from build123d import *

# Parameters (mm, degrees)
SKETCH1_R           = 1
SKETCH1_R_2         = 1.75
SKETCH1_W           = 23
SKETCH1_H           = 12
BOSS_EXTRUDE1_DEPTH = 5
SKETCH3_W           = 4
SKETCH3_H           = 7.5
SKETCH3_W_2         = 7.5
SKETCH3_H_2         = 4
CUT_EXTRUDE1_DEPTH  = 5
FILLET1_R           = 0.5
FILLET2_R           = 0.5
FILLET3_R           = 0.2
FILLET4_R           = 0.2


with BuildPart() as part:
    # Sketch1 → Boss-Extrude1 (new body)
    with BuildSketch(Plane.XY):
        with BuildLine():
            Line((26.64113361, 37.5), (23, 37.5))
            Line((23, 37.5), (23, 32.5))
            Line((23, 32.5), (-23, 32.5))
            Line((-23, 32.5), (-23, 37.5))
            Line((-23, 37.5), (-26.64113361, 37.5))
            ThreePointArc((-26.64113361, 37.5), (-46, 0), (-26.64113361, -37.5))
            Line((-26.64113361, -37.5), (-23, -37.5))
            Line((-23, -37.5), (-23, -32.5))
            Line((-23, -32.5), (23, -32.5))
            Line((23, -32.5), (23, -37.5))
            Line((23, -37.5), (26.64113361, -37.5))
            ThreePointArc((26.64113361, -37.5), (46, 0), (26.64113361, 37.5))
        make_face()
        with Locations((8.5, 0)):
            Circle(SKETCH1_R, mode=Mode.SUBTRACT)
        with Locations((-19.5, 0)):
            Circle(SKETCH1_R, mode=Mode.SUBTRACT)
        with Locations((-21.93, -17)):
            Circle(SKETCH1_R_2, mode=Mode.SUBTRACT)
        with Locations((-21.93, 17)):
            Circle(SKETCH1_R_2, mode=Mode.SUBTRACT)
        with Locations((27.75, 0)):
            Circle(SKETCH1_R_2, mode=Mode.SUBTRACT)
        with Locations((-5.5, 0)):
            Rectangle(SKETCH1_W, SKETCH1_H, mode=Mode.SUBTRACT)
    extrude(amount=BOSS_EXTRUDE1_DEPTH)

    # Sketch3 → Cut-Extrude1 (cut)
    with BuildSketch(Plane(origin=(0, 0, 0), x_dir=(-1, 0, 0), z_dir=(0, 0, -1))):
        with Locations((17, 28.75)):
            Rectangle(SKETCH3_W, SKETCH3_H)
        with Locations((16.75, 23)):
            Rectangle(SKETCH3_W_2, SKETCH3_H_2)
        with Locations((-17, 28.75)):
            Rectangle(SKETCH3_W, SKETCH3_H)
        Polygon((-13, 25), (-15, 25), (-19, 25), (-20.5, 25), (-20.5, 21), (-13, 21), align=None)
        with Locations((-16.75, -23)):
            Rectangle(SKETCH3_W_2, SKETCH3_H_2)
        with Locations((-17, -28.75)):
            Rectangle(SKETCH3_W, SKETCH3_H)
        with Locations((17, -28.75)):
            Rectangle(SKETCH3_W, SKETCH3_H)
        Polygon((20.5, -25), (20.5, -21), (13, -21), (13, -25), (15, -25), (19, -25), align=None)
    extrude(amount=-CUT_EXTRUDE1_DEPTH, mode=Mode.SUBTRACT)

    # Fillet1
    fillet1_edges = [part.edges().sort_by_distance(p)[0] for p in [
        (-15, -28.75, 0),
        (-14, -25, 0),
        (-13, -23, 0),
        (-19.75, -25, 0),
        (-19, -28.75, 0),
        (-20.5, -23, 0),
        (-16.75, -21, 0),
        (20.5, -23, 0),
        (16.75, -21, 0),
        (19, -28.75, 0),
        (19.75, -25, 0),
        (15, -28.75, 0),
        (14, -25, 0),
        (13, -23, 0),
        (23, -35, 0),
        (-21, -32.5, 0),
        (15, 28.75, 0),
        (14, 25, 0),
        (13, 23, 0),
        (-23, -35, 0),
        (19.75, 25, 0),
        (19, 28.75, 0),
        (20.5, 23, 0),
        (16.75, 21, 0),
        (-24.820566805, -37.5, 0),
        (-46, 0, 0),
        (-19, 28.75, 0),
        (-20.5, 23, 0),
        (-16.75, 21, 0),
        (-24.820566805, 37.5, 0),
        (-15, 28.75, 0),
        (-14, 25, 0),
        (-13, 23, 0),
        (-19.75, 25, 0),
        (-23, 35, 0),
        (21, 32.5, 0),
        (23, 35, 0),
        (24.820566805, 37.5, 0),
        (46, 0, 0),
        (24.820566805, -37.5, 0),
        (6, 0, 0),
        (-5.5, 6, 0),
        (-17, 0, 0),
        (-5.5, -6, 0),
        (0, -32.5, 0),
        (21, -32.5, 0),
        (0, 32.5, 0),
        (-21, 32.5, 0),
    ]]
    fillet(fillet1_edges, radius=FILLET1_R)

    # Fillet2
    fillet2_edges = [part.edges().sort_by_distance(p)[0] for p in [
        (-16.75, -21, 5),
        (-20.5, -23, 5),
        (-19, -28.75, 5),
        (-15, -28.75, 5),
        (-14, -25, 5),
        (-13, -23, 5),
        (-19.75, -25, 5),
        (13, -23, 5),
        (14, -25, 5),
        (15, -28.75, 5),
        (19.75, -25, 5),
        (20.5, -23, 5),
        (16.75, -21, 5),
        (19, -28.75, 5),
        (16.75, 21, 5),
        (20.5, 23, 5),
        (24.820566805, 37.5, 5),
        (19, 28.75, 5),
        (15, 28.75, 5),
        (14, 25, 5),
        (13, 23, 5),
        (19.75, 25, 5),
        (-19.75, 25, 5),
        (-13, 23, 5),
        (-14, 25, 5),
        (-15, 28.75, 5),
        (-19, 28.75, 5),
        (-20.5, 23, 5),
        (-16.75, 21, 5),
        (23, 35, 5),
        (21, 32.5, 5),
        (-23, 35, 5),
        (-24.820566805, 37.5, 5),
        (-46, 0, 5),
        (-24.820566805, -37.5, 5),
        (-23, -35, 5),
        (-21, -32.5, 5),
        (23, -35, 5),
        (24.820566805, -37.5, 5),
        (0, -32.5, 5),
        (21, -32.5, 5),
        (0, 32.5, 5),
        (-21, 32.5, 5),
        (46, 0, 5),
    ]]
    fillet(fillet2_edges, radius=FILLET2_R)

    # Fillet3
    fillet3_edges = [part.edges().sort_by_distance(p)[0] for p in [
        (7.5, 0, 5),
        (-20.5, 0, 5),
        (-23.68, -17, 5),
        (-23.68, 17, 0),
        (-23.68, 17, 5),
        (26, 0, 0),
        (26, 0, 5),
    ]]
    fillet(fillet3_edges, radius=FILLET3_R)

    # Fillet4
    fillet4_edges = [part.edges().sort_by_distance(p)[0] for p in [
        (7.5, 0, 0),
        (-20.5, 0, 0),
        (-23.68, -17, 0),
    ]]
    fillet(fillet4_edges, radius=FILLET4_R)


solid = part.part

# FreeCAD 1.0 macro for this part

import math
import FreeCAD as App
import Part
import Sketcher
Q = App.Units.Quantity


def edges_at(feature, points):
    """Names of the edges that pass closest to the given points."""
    edges = feature.Shape.Edges
    near = lambda p: min(range(len(edges)), key=lambda i: edges[i].distToShape(Part.Vertex(*p))[0])
    return sorted({f"Edge{near(p) + 1}" for p in points})


def add_polygon(sketch, points):
    """Adds a closed chain of lines whose ends are joined by coincident constraints."""
    first, n = sketch.GeometryCount, len(points)
    for a, b in zip(points, points[1:] + points[:1]):
        sketch.addGeometry(Part.LineSegment(App.Vector(*a, 0), App.Vector(*b, 0)), False)
    for i in range(n):
        sketch.addConstraint(Sketcher.Constraint("Coincident", first + i, 2, first + (i + 1) % n, 1))

doc = App.newDocument("Part")
params = doc.addObject("Spreadsheet::Sheet", "Params")
for row, (alias, value) in enumerate([
    ("sketch1_diameter", "2 mm"),
    ("sketch1_radius", "46 mm"),
    ("sketch1_diameter2", "3.5 mm"),
    ("sketch1_width", "46 mm"),
    ("sketch1_width2", "23 mm"),
    ("pad1_length", "5 mm"),
    ("sketch2_width", "2 mm"),
    ("sketch2_width2", "4 mm"),
    ("sketch2_width3", "7.5 mm"),
    ("pocket1_length", "5 mm"),
    ("fillet_radius", "0.5 mm"),
    ("fillet2_radius", "0.5 mm"),
    ("fillet3_radius", "0.2 mm"),
    ("fillet4_radius", "0.2 mm"),
], start=1):
    params.set(f"A{row}", alias)
    params.set(f"B{row}", "=" + value)
    params.setAlias(f"B{row}", alias)

body = doc.addObject("PartDesign::Body", "Body")

sketch1 = body.newObject("Sketcher::SketchObject", "Sketch")
sketch1.AttachmentSupport = (doc.getObject("XY_Plane"), [""])
sketch1.MapMode = "FlatFace"
sketch1.addGeometry(Part.LineSegment(App.Vector(26.6, 37.5, 0), App.Vector(23, 37.5, 0)), False)
sketch1.addGeometry(Part.LineSegment(App.Vector(23, 37.5, 0), App.Vector(23, 32.5, 0)), False)
sketch1.addGeometry(Part.LineSegment(App.Vector(23, 32.5, 0), App.Vector(-23, 32.5, 0)), False)
sketch1.addGeometry(Part.LineSegment(App.Vector(-23, 32.5, 0), App.Vector(-23, 37.5, 0)), False)
sketch1.addGeometry(Part.LineSegment(App.Vector(-23, 37.5, 0), App.Vector(-26.6, 37.5, 0)), False)
sketch1.addGeometry(Part.ArcOfCircle(Part.Circle(App.Vector(0, 0, 0), App.Vector(0, 0, 1), 46), math.radians(125), math.radians(235)), False)
sketch1.addGeometry(Part.LineSegment(App.Vector(-26.6, -37.5, 0), App.Vector(-23, -37.5, 0)), False)
sketch1.addGeometry(Part.LineSegment(App.Vector(-23, -37.5, 0), App.Vector(-23, -32.5, 0)), False)
sketch1.addGeometry(Part.LineSegment(App.Vector(-23, -32.5, 0), App.Vector(23, -32.5, 0)), False)
sketch1.addGeometry(Part.LineSegment(App.Vector(23, -32.5, 0), App.Vector(23, -37.5, 0)), False)
sketch1.addGeometry(Part.LineSegment(App.Vector(23, -37.5, 0), App.Vector(26.6, -37.5, 0)), False)
sketch1.addGeometry(Part.ArcOfCircle(Part.Circle(App.Vector(0, 0, 0), App.Vector(0, 0, 1), 46), math.radians(-55), math.radians(55)), False)
sketch1.addGeometry(Part.Circle(App.Vector(-21.9, -17, 0), App.Vector(0, 0, 1), 1.8), False)
sketch1.addGeometry(Part.Circle(App.Vector(-19.5, 0, 0), App.Vector(0, 0, 1), 1), False)
add_polygon(sketch1, [(6, -6), (-17, -6), (-17, 6), (6, 6)])
sketch1.addGeometry(Part.Circle(App.Vector(-21.9, 17, 0), App.Vector(0, 0, 1), 1.8), False)
sketch1.addGeometry(Part.Circle(App.Vector(8.5, 0, 0), App.Vector(0, 0, 1), 1), False)
sketch1.addGeometry(Part.Circle(App.Vector(27.8, 0, 0), App.Vector(0, 0, 1), 1.8), False)
sketch1.addConstraint([
    Sketcher.Constraint("Coincident", 0, 2, 1, 1),
    Sketcher.Constraint("Coincident", 1, 2, 2, 1),
    Sketcher.Constraint("Coincident", 2, 2, 3, 1),
    Sketcher.Constraint("Coincident", 3, 2, 4, 1),
    Sketcher.Constraint("Coincident", 4, 2, 5, 1),
    Sketcher.Constraint("Coincident", 5, 2, 6, 1),
    Sketcher.Constraint("Coincident", 6, 2, 7, 1),
    Sketcher.Constraint("Coincident", 7, 2, 8, 1),
    Sketcher.Constraint("Coincident", 8, 2, 9, 1),
    Sketcher.Constraint("Coincident", 9, 2, 10, 1),
    Sketcher.Constraint("Coincident", 10, 2, 11, 1),
    Sketcher.Constraint("Coincident", 11, 2, 0, 1),
    Sketcher.Constraint("Horizontal", 0),
    Sketcher.Constraint("Vertical", 1),
    Sketcher.Constraint("Horizontal", 2),
    Sketcher.Constraint("Vertical", 3),
    Sketcher.Constraint("Horizontal", 4),
    Sketcher.Constraint("Horizontal", 6),
    Sketcher.Constraint("Vertical", 7),
    Sketcher.Constraint("Horizontal", 8),
    Sketcher.Constraint("Vertical", 9),
    Sketcher.Constraint("Horizontal", 10),
    Sketcher.Constraint("Horizontal", 14),
    Sketcher.Constraint("Vertical", 15),
    Sketcher.Constraint("Horizontal", 16),
    Sketcher.Constraint("Vertical", 17),
    Sketcher.Constraint("Coincident", 5, 3, -1, 1),
    Sketcher.Constraint("Coincident", 11, 3, -1, 1),
    Sketcher.Constraint("Equal", 5, 11),
    Sketcher.Constraint("Equal", 12, 18),
    Sketcher.Constraint("Equal", 13, 19),
    Sketcher.Constraint("Equal", 18, 20),
    Sketcher.Constraint("Symmetric", 0, 2, 6, 2, -1, 1),
    Sketcher.Constraint("Symmetric", 2, 2, 8, 2, -1, 1),
    Sketcher.Constraint("Symmetric", 0, 2, 3, 2, -2),
    Sketcher.Constraint("Symmetric", 12, 3, 18, 3, -1),
    Sketcher.Constraint("PointOnObject", 13, 3, -1),
    Sketcher.Constraint("PointOnObject", 19, 3, -1),
    Sketcher.Constraint("PointOnObject", 20, 3, -1),
    Sketcher.Constraint("Horizontal", 6, 2, 9, 2),
    Sketcher.Constraint("Diameter", 13, Q("2 mm")),
    Sketcher.Constraint("Radius", 5, Q("46 mm")),
    Sketcher.Constraint("Diameter", 12, Q("3.5 mm")),
    Sketcher.Constraint("DistanceX", 2, 2, 2, 1, Q("46 mm")),
    Sketcher.Constraint("DistanceX", 14, 2, 14, 1, Q("23 mm")),
    Sketcher.Constraint("DistanceY", 1, 2, 1, 1, Q("5 mm")),
    Sketcher.Constraint("DistanceY", 15, 1, 15, 2, Q("12 mm")),
    Sketcher.Constraint("DistanceY", 12, 3, -1, 1, Q("17 mm")),
    Sketcher.Constraint("DistanceX", 14, 2, -1, 1, Q("17 mm")),
    Sketcher.Constraint("DistanceY", 14, 2, -1, 1, Q("6 mm")),
    Sketcher.Constraint("DistanceX", 13, 3, 19, 3, Q("28 mm")),
    Sketcher.Constraint("DistanceX", 13, 3, -1, 1, Q("19.5 mm")),
    Sketcher.Constraint("DistanceY", -1, 1, 0, 2, Q("37.5 mm")),
    Sketcher.Constraint("DistanceX", 12, 3, -1, 1, Q("21.93 mm")),
    Sketcher.Constraint("DistanceX", -1, 1, 20, 3, Q("27.75 mm")),
])
sketch1.setExpression("Constraints[44]", "Params.sketch1_diameter")
sketch1.setExpression("Constraints[45]", "Params.sketch1_radius")
sketch1.setExpression("Constraints[46]", "Params.sketch1_diameter2")
sketch1.setExpression("Constraints[47]", "Params.sketch1_width")
sketch1.setExpression("Constraints[48]", "Params.sketch1_width2")
pad1 = body.newObject("PartDesign::Pad", "Pad")
pad1.Profile = sketch1
pad1.setExpression("Length", "Params.pad1_length")

sketch2 = body.newObject("Sketcher::SketchObject", "Sketch001")
sketch2.AttachmentSupport = (doc.getObject("XY_Plane"), [""])
sketch2.MapMode = "FlatFace"
add_polygon(sketch2, [(-15, 32.5), (-15, 25), (-13, 25), (-13, 21), (-20.5, 21), (-20.5, 25), (-19, 25), (-19, 32.5)])
add_polygon(sketch2, [(19, 32.5), (19, 25), (20.5, 25), (20.5, 21), (13, 21), (13, 25), (15, 25), (15, 32.5)])
add_polygon(sketch2, [(20.5, -21), (20.5, -25), (19, -25), (19, -32.5), (15, -32.5), (15, -25), (13, -25), (13, -21)])
add_polygon(sketch2, [(-15, -25), (-15, -32.5), (-19, -32.5), (-19, -25), (-20.5, -25), (-20.5, -21), (-13, -21), (-13, -25)])
sketch2.addConstraint([
    Sketcher.Constraint("Vertical", 0),
    Sketcher.Constraint("Horizontal", 1),
    Sketcher.Constraint("Vertical", 2),
    Sketcher.Constraint("Horizontal", 3),
    Sketcher.Constraint("Vertical", 4),
    Sketcher.Constraint("Horizontal", 5),
    Sketcher.Constraint("Vertical", 6),
    Sketcher.Constraint("Horizontal", 7),
    Sketcher.Constraint("Vertical", 8),
    Sketcher.Constraint("Horizontal", 9),
    Sketcher.Constraint("Vertical", 10),
    Sketcher.Constraint("Horizontal", 11),
    Sketcher.Constraint("Vertical", 12),
    Sketcher.Constraint("Horizontal", 13),
    Sketcher.Constraint("Vertical", 14),
    Sketcher.Constraint("Horizontal", 15),
    Sketcher.Constraint("Vertical", 16),
    Sketcher.Constraint("Horizontal", 17),
    Sketcher.Constraint("Vertical", 18),
    Sketcher.Constraint("Horizontal", 19),
    Sketcher.Constraint("Vertical", 20),
    Sketcher.Constraint("Horizontal", 21),
    Sketcher.Constraint("Vertical", 22),
    Sketcher.Constraint("Horizontal", 23),
    Sketcher.Constraint("Vertical", 24),
    Sketcher.Constraint("Horizontal", 25),
    Sketcher.Constraint("Vertical", 26),
    Sketcher.Constraint("Horizontal", 27),
    Sketcher.Constraint("Vertical", 28),
    Sketcher.Constraint("Horizontal", 29),
    Sketcher.Constraint("Vertical", 30),
    Sketcher.Constraint("Horizontal", 31),
    Sketcher.Constraint("Symmetric", 4, 2, 16, 2, -1, 1),
    Sketcher.Constraint("Symmetric", 6, 2, 18, 2, -1, 1),
    Sketcher.Constraint("Symmetric", 0, 2, 20, 2, -1, 1),
    Sketcher.Constraint("Symmetric", 2, 2, 22, 2, -1, 1),
    Sketcher.Constraint("Symmetric", 14, 2, 24, 2, -1, 1),
    Sketcher.Constraint("Symmetric", 8, 2, 26, 2, -1, 1),
    Sketcher.Constraint("Symmetric", 10, 2, 28, 2, -1, 1),
    Sketcher.Constraint("Symmetric", 12, 2, 30, 2, -1, 1),
    Sketcher.Constraint("Symmetric", 5, 2, 8, 2, -2),
    Sketcher.Constraint("Symmetric", 3, 2, 10, 2, -2),
    Sketcher.Constraint("Symmetric", 1, 2, 12, 2, -2),
    Sketcher.Constraint("Symmetric", 7, 2, 14, 2, -2),
    Sketcher.Constraint("Horizontal", 1, 2, 4, 2),
    Sketcher.Constraint("Equal", 29, 0),
    Sketcher.Constraint("Equal", 25, 2),
    Sketcher.Constraint("DistanceX", 1, 1, 1, 2, Q("2 mm")),
    Sketcher.Constraint("DistanceX", 7, 1, 7, 2, Q("4 mm")),
    Sketcher.Constraint("DistanceX", 3, 2, 3, 1, Q("7.5 mm")),
    Sketcher.Constraint("DistanceX", 0, 2, -1, 1, Q("15 mm")),
    Sketcher.Constraint("DistanceY", -1, 1, 0, 2, Q("25 mm")),
])
sketch2.setExpression("Constraints[79]", "Params.sketch2_width")
sketch2.setExpression("Constraints[80]", "Params.sketch2_width2")
sketch2.setExpression("Constraints[81]", "Params.sketch2_width3")
pocket1 = body.newObject("PartDesign::Pocket", "Pocket")
pocket1.Profile = sketch2
pocket1.setExpression("Length", "Params.pocket1_length")
pocket1.Reversed = True
doc.recompute()

fillet = body.newObject("PartDesign::Fillet", "Fillet")
fillet.Base = (pocket1, edges_at(pocket1, [
    (-15, -28.75, 0),
    (-14, -25, 0),
    (-13, -23, 0),
    (-19.75, -25, 0),
    (-19, -28.75, 0),
    (-20.5, -23, 0),
    (-16.75, -21, 0),
    (20.5, -23, 0),
    (16.75, -21, 0),
    (19, -28.75, 0),
    (19.75, -25, 0),
    (15, -28.75, 0),
    (14, -25, 0),
    (13, -23, 0),
    (23, -35, 0),
    (-21, -32.5, 0),
    (15, 28.75, 0),
    (14, 25, 0),
    (13, 23, 0),
    (-23, -35, 0),
    (19.75, 25, 0),
    (19, 28.75, 0),
    (20.5, 23, 0),
    (16.75, 21, 0),
    (-24.821, -37.5, 0),
    (-46, 0, 0),
    (-19, 28.75, 0),
    (-20.5, 23, 0),
    (-16.75, 21, 0),
    (-24.821, 37.5, 0),
    (-15, 28.75, 0),
    (-14, 25, 0),
    (-13, 23, 0),
    (-19.75, 25, 0),
    (-23, 35, 0),
    (21, 32.5, 0),
    (23, 35, 0),
    (24.821, 37.5, 0),
    (46, 0, 0),
    (24.821, -37.5, 0),
    (6, 0, 0),
    (-5.5, 6, 0),
    (-17, 0, 0),
    (-5.5, -6, 0),
    (0, -32.5, 0),
    (21, -32.5, 0),
    (0, 32.5, 0),
    (-21, 32.5, 0),
]))
fillet.setExpression("Radius", "Params.fillet_radius")
doc.recompute()

fillet2 = body.newObject("PartDesign::Fillet", "Fillet001")
fillet2.Base = (fillet, edges_at(fillet, [
    (-16.75, -21, 5),
    (-20.5, -23, 5),
    (-19, -28.75, 5),
    (-15, -28.75, 5),
    (-14, -25, 5),
    (-13, -23, 5),
    (-19.75, -25, 5),
    (13, -23, 5),
    (14, -25, 5),
    (15, -28.75, 5),
    (19.75, -25, 5),
    (20.5, -23, 5),
    (16.75, -21, 5),
    (19, -28.75, 5),
    (16.75, 21, 5),
    (20.5, 23, 5),
    (24.821, 37.5, 5),
    (19, 28.75, 5),
    (15, 28.75, 5),
    (14, 25, 5),
    (13, 23, 5),
    (19.75, 25, 5),
    (-19.75, 25, 5),
    (-13, 23, 5),
    (-14, 25, 5),
    (-15, 28.75, 5),
    (-19, 28.75, 5),
    (-20.5, 23, 5),
    (-16.75, 21, 5),
    (23, 35, 5),
    (21, 32.5, 5),
    (-23, 35, 5),
    (-24.821, 37.5, 5),
    (-46, 0, 5),
    (-24.821, -37.5, 5),
    (-23, -35, 5),
    (-21, -32.5, 5),
    (23, -35, 5),
    (24.821, -37.5, 5),
    (0, -32.5, 5),
    (21, -32.5, 5),
    (0, 32.5, 5),
    (-21, 32.5, 5),
    (46, 0, 5),
]))
fillet2.setExpression("Radius", "Params.fillet2_radius")
doc.recompute()

fillet3 = body.newObject("PartDesign::Fillet", "Fillet002")
fillet3.Base = (fillet2, edges_at(fillet2, [
    (7.5, 0, 5),
    (-20.5, 0, 5),
    (-23.68, -17, 5),
    (-23.68, 17, 0),
    (-23.68, 17, 5),
    (26, 0, 0),
    (26, 0, 5),
]))
fillet3.setExpression("Radius", "Params.fillet3_radius")
doc.recompute()

fillet4 = body.newObject("PartDesign::Fillet", "Fillet003")
fillet4.Base = (fillet3, edges_at(fillet3, [(7.5, 0, 0), (-20.5, 0, 0), (-23.68, -17, 0)]))
fillet4.setExpression("Radius", "Params.fillet4_radius")

doc.recompute()
